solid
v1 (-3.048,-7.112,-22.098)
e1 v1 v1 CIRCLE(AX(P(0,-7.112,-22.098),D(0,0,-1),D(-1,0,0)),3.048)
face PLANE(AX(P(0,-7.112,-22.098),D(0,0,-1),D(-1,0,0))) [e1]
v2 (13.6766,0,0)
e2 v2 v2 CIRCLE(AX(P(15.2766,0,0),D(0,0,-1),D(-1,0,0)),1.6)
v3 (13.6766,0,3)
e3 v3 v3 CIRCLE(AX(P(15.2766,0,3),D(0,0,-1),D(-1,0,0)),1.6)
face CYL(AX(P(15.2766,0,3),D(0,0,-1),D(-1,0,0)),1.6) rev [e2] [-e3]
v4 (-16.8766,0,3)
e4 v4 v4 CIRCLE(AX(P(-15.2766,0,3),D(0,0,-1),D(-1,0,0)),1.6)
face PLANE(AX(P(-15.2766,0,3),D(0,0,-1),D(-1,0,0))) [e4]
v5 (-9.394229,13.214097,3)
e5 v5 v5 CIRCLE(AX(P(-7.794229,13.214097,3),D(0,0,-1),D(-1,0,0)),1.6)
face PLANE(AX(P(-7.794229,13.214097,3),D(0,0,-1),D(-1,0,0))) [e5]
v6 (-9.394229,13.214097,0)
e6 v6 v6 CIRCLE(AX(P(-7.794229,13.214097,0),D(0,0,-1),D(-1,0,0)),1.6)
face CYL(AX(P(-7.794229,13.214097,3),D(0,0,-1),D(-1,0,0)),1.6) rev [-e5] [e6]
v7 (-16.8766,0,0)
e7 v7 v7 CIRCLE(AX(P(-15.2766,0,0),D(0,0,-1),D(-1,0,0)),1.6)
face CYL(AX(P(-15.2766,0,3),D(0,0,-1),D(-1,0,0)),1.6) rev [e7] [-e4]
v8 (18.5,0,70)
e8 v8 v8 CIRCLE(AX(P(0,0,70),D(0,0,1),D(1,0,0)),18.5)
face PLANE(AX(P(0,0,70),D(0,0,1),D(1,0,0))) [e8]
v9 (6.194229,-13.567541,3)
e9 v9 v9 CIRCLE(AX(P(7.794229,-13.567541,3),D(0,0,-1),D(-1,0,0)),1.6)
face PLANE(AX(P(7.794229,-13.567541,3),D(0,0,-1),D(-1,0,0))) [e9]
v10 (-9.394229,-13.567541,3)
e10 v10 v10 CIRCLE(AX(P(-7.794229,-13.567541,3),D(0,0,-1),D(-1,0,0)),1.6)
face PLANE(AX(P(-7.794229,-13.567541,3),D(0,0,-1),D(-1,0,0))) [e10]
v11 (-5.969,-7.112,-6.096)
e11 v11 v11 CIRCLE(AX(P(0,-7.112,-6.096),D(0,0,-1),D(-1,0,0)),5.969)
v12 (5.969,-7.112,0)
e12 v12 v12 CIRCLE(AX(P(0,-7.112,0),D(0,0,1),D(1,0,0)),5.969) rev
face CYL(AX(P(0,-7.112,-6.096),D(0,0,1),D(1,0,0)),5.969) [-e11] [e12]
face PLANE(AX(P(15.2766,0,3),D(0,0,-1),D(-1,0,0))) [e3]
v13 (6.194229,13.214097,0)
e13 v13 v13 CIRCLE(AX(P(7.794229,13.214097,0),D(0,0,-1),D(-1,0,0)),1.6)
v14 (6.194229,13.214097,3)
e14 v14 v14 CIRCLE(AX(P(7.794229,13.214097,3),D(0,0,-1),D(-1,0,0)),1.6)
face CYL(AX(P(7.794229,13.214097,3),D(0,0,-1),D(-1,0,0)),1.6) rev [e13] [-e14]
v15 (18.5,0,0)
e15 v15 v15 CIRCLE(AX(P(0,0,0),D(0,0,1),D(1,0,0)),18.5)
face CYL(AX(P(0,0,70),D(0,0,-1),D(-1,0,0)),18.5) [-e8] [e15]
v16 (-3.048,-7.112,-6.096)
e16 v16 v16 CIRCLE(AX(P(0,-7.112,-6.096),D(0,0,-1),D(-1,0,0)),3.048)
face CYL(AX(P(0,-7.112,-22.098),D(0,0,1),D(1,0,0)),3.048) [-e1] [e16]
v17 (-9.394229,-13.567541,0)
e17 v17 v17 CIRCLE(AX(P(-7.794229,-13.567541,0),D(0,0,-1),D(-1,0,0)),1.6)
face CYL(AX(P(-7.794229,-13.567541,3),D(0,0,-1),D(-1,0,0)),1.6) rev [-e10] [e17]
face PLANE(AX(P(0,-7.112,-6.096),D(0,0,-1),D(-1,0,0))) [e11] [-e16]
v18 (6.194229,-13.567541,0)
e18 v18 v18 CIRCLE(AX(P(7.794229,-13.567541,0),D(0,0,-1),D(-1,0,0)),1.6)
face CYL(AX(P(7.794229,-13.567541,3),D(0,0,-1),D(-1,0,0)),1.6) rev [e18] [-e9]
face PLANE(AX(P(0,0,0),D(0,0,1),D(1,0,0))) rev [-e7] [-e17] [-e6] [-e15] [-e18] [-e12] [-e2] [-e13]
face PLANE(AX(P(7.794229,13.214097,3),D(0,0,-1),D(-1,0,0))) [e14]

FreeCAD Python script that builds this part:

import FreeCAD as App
import Part
import Sketcher

doc = App.newDocument("Part")
params = doc.addObject("Spreadsheet::Sheet", "Params")
for row, (alias, value) in enumerate([
    ("sketch1_diameter", "37 mm"),
    ("pad1_length", "70 mm"),
    ("pad2_length", "6.096 mm"),
    ("pad3_length", "16.002 mm"),
    ("sketch4_diameter", "3.2 mm"),
    ("pocket1_length", "3 mm"),
], start=1):
    params.set(f"A{row}", alias)
    params.set(f"B{row}", "=" + value)
    params.setAlias(f"B{row}", alias)

body = doc.addObject("PartDesign::Body", "Body")

sketch1 = doc.addObject("Sketcher::SketchObject", "Sketch")
body.addObject(sketch1)
sketch1.AttachmentSupport = (doc.XY_Plane, [""])
sketch1.MapMode = "FlatFace"
sketch1.addGeometry(Part.Circle(App.Vector(0, 0, 0), App.Vector(0, 0, 1), 18), False)
sketch1.addConstraint([
    Sketcher.Constraint("Coincident", 0, 3, -1, 1),
    Sketcher.Constraint("Diameter", 0, 37.0),
])
sketch1.setExpression("Constraints[1]", "Params.sketch1_diameter")
pad1 = doc.addObject("PartDesign::Pad", "Pad")
body.addObject(pad1)
pad1.Profile = sketch1
pad1.setExpression("Length", "Params.pad1_length")

sketch2 = doc.addObject("Sketcher::SketchObject", "Sketch001")
body.addObject(sketch2)
sketch2.AttachmentSupport = (doc.XY_Plane, [""])
sketch2.MapMode = "FlatFace"
sketch2.addGeometry(Part.Circle(App.Vector(0, -7, 0), App.Vector(0, 0, 1), 6), False)
sketch2.addConstraint([
    Sketcher.Constraint("PointOnObject", 0, 3, -2),
    Sketcher.Constraint("Diameter", 0, 11.938),
    Sketcher.Constraint("DistanceY", 0, 3, -1, 1, 7.112),
])
pad2 = doc.addObject("PartDesign::Pad", "Pad001")
body.addObject(pad2)
pad2.Profile = sketch2
pad2.setExpression("Length", "Params.pad2_length")
pad2.Reversed = True

sketch3 = doc.addObject("Sketcher::SketchObject", "Sketch002")
body.addObject(sketch3)
sketch3.AttachmentSupport = (doc.XY_Plane, [""])
sketch3.MapMode = "FlatFace"
sketch3.AttachmentOffset = App.Placement(App.Vector(0, 0, -6.096), App.Rotation())
sketch3.addGeometry(Part.Circle(App.Vector(0, -7.1, 0), App.Vector(0, 0, 1), 3), False)
sketch3.addConstraint([
    Sketcher.Constraint("PointOnObject", 0, 3, -2),
    Sketcher.Constraint("Diameter", 0, 6.096),
    Sketcher.Constraint("DistanceY", 0, 3, -1, 1, 7.112),
])
pad3 = doc.addObject("PartDesign::Pad", "Pad002")
body.addObject(pad3)
pad3.Profile = sketch3
pad3.setExpression("Length", "Params.pad3_length")
pad3.Reversed = True

sketch4 = doc.addObject("Sketcher::SketchObject", "Sketch003")
body.addObject(sketch4)
sketch4.AttachmentSupport = (doc.XY_Plane, [""])
sketch4.MapMode = "FlatFace"
sketch4.addGeometry([
    Part.Circle(App.Vector(15.3, 0, 0), App.Vector(0, 0, 1), 1.6),
    Part.Circle(App.Vector(-15.3, 0, 0), App.Vector(0, 0, 1), 1.6),
    Part.Circle(App.Vector(-7.8, -13.6, 0), App.Vector(0, 0, 1), 1.6),
    Part.Circle(App.Vector(7.8, -13.6, 0), App.Vector(0, 0, 1), 1.6),
    Part.Circle(App.Vector(7.8, 13.2, 0), App.Vector(0, 0, 1), 1.6),
    Part.Circle(App.Vector(-7.8, 13.2, 0), App.Vector(0, 0, 1), 1.6),
], False)
sketch4.addConstraint([
    Sketcher.Constraint("Equal", 0, 1),
    Sketcher.Constraint("Equal", 1, 2),
    Sketcher.Constraint("Equal", 2, 3),
    Sketcher.Constraint("Equal", 3, 4),
    Sketcher.Constraint("Equal", 4, 5),
    Sketcher.Constraint("Symmetric", 0, 3, 1, 3, -1, 1),
    Sketcher.Constraint("Symmetric", 2, 3, 3, 3, -2),
    Sketcher.Constraint("Symmetric", 4, 3, 5, 3, -2),
    Sketcher.Constraint("PointOnObject", 0, 3, -1),
    Sketcher.Constraint("Vertical", 3, 3, 4, 3),
    Sketcher.Constraint("Diameter", 0, 3.2),
    Sketcher.Constraint("DistanceX", -1, 1, 0, 3, 15.2766),
    Sketcher.Constraint("DistanceX", 2, 3, -1, 1, 7.794229),
    Sketcher.Constraint("DistanceY", 2, 3, -1, 1, 13.567541),
    Sketcher.Constraint("DistanceY", -1, 1, 4, 3, 13.214097),
])
sketch4.setExpression("Constraints[10]", "Params.sketch4_diameter")
pocket1 = doc.addObject("PartDesign::Pocket", "Pocket")
body.addObject(pocket1)
pocket1.Profile = sketch4
pocket1.setExpression("Length", "Params.pocket1_length")
pocket1.Reversed = True

doc.recompute()
